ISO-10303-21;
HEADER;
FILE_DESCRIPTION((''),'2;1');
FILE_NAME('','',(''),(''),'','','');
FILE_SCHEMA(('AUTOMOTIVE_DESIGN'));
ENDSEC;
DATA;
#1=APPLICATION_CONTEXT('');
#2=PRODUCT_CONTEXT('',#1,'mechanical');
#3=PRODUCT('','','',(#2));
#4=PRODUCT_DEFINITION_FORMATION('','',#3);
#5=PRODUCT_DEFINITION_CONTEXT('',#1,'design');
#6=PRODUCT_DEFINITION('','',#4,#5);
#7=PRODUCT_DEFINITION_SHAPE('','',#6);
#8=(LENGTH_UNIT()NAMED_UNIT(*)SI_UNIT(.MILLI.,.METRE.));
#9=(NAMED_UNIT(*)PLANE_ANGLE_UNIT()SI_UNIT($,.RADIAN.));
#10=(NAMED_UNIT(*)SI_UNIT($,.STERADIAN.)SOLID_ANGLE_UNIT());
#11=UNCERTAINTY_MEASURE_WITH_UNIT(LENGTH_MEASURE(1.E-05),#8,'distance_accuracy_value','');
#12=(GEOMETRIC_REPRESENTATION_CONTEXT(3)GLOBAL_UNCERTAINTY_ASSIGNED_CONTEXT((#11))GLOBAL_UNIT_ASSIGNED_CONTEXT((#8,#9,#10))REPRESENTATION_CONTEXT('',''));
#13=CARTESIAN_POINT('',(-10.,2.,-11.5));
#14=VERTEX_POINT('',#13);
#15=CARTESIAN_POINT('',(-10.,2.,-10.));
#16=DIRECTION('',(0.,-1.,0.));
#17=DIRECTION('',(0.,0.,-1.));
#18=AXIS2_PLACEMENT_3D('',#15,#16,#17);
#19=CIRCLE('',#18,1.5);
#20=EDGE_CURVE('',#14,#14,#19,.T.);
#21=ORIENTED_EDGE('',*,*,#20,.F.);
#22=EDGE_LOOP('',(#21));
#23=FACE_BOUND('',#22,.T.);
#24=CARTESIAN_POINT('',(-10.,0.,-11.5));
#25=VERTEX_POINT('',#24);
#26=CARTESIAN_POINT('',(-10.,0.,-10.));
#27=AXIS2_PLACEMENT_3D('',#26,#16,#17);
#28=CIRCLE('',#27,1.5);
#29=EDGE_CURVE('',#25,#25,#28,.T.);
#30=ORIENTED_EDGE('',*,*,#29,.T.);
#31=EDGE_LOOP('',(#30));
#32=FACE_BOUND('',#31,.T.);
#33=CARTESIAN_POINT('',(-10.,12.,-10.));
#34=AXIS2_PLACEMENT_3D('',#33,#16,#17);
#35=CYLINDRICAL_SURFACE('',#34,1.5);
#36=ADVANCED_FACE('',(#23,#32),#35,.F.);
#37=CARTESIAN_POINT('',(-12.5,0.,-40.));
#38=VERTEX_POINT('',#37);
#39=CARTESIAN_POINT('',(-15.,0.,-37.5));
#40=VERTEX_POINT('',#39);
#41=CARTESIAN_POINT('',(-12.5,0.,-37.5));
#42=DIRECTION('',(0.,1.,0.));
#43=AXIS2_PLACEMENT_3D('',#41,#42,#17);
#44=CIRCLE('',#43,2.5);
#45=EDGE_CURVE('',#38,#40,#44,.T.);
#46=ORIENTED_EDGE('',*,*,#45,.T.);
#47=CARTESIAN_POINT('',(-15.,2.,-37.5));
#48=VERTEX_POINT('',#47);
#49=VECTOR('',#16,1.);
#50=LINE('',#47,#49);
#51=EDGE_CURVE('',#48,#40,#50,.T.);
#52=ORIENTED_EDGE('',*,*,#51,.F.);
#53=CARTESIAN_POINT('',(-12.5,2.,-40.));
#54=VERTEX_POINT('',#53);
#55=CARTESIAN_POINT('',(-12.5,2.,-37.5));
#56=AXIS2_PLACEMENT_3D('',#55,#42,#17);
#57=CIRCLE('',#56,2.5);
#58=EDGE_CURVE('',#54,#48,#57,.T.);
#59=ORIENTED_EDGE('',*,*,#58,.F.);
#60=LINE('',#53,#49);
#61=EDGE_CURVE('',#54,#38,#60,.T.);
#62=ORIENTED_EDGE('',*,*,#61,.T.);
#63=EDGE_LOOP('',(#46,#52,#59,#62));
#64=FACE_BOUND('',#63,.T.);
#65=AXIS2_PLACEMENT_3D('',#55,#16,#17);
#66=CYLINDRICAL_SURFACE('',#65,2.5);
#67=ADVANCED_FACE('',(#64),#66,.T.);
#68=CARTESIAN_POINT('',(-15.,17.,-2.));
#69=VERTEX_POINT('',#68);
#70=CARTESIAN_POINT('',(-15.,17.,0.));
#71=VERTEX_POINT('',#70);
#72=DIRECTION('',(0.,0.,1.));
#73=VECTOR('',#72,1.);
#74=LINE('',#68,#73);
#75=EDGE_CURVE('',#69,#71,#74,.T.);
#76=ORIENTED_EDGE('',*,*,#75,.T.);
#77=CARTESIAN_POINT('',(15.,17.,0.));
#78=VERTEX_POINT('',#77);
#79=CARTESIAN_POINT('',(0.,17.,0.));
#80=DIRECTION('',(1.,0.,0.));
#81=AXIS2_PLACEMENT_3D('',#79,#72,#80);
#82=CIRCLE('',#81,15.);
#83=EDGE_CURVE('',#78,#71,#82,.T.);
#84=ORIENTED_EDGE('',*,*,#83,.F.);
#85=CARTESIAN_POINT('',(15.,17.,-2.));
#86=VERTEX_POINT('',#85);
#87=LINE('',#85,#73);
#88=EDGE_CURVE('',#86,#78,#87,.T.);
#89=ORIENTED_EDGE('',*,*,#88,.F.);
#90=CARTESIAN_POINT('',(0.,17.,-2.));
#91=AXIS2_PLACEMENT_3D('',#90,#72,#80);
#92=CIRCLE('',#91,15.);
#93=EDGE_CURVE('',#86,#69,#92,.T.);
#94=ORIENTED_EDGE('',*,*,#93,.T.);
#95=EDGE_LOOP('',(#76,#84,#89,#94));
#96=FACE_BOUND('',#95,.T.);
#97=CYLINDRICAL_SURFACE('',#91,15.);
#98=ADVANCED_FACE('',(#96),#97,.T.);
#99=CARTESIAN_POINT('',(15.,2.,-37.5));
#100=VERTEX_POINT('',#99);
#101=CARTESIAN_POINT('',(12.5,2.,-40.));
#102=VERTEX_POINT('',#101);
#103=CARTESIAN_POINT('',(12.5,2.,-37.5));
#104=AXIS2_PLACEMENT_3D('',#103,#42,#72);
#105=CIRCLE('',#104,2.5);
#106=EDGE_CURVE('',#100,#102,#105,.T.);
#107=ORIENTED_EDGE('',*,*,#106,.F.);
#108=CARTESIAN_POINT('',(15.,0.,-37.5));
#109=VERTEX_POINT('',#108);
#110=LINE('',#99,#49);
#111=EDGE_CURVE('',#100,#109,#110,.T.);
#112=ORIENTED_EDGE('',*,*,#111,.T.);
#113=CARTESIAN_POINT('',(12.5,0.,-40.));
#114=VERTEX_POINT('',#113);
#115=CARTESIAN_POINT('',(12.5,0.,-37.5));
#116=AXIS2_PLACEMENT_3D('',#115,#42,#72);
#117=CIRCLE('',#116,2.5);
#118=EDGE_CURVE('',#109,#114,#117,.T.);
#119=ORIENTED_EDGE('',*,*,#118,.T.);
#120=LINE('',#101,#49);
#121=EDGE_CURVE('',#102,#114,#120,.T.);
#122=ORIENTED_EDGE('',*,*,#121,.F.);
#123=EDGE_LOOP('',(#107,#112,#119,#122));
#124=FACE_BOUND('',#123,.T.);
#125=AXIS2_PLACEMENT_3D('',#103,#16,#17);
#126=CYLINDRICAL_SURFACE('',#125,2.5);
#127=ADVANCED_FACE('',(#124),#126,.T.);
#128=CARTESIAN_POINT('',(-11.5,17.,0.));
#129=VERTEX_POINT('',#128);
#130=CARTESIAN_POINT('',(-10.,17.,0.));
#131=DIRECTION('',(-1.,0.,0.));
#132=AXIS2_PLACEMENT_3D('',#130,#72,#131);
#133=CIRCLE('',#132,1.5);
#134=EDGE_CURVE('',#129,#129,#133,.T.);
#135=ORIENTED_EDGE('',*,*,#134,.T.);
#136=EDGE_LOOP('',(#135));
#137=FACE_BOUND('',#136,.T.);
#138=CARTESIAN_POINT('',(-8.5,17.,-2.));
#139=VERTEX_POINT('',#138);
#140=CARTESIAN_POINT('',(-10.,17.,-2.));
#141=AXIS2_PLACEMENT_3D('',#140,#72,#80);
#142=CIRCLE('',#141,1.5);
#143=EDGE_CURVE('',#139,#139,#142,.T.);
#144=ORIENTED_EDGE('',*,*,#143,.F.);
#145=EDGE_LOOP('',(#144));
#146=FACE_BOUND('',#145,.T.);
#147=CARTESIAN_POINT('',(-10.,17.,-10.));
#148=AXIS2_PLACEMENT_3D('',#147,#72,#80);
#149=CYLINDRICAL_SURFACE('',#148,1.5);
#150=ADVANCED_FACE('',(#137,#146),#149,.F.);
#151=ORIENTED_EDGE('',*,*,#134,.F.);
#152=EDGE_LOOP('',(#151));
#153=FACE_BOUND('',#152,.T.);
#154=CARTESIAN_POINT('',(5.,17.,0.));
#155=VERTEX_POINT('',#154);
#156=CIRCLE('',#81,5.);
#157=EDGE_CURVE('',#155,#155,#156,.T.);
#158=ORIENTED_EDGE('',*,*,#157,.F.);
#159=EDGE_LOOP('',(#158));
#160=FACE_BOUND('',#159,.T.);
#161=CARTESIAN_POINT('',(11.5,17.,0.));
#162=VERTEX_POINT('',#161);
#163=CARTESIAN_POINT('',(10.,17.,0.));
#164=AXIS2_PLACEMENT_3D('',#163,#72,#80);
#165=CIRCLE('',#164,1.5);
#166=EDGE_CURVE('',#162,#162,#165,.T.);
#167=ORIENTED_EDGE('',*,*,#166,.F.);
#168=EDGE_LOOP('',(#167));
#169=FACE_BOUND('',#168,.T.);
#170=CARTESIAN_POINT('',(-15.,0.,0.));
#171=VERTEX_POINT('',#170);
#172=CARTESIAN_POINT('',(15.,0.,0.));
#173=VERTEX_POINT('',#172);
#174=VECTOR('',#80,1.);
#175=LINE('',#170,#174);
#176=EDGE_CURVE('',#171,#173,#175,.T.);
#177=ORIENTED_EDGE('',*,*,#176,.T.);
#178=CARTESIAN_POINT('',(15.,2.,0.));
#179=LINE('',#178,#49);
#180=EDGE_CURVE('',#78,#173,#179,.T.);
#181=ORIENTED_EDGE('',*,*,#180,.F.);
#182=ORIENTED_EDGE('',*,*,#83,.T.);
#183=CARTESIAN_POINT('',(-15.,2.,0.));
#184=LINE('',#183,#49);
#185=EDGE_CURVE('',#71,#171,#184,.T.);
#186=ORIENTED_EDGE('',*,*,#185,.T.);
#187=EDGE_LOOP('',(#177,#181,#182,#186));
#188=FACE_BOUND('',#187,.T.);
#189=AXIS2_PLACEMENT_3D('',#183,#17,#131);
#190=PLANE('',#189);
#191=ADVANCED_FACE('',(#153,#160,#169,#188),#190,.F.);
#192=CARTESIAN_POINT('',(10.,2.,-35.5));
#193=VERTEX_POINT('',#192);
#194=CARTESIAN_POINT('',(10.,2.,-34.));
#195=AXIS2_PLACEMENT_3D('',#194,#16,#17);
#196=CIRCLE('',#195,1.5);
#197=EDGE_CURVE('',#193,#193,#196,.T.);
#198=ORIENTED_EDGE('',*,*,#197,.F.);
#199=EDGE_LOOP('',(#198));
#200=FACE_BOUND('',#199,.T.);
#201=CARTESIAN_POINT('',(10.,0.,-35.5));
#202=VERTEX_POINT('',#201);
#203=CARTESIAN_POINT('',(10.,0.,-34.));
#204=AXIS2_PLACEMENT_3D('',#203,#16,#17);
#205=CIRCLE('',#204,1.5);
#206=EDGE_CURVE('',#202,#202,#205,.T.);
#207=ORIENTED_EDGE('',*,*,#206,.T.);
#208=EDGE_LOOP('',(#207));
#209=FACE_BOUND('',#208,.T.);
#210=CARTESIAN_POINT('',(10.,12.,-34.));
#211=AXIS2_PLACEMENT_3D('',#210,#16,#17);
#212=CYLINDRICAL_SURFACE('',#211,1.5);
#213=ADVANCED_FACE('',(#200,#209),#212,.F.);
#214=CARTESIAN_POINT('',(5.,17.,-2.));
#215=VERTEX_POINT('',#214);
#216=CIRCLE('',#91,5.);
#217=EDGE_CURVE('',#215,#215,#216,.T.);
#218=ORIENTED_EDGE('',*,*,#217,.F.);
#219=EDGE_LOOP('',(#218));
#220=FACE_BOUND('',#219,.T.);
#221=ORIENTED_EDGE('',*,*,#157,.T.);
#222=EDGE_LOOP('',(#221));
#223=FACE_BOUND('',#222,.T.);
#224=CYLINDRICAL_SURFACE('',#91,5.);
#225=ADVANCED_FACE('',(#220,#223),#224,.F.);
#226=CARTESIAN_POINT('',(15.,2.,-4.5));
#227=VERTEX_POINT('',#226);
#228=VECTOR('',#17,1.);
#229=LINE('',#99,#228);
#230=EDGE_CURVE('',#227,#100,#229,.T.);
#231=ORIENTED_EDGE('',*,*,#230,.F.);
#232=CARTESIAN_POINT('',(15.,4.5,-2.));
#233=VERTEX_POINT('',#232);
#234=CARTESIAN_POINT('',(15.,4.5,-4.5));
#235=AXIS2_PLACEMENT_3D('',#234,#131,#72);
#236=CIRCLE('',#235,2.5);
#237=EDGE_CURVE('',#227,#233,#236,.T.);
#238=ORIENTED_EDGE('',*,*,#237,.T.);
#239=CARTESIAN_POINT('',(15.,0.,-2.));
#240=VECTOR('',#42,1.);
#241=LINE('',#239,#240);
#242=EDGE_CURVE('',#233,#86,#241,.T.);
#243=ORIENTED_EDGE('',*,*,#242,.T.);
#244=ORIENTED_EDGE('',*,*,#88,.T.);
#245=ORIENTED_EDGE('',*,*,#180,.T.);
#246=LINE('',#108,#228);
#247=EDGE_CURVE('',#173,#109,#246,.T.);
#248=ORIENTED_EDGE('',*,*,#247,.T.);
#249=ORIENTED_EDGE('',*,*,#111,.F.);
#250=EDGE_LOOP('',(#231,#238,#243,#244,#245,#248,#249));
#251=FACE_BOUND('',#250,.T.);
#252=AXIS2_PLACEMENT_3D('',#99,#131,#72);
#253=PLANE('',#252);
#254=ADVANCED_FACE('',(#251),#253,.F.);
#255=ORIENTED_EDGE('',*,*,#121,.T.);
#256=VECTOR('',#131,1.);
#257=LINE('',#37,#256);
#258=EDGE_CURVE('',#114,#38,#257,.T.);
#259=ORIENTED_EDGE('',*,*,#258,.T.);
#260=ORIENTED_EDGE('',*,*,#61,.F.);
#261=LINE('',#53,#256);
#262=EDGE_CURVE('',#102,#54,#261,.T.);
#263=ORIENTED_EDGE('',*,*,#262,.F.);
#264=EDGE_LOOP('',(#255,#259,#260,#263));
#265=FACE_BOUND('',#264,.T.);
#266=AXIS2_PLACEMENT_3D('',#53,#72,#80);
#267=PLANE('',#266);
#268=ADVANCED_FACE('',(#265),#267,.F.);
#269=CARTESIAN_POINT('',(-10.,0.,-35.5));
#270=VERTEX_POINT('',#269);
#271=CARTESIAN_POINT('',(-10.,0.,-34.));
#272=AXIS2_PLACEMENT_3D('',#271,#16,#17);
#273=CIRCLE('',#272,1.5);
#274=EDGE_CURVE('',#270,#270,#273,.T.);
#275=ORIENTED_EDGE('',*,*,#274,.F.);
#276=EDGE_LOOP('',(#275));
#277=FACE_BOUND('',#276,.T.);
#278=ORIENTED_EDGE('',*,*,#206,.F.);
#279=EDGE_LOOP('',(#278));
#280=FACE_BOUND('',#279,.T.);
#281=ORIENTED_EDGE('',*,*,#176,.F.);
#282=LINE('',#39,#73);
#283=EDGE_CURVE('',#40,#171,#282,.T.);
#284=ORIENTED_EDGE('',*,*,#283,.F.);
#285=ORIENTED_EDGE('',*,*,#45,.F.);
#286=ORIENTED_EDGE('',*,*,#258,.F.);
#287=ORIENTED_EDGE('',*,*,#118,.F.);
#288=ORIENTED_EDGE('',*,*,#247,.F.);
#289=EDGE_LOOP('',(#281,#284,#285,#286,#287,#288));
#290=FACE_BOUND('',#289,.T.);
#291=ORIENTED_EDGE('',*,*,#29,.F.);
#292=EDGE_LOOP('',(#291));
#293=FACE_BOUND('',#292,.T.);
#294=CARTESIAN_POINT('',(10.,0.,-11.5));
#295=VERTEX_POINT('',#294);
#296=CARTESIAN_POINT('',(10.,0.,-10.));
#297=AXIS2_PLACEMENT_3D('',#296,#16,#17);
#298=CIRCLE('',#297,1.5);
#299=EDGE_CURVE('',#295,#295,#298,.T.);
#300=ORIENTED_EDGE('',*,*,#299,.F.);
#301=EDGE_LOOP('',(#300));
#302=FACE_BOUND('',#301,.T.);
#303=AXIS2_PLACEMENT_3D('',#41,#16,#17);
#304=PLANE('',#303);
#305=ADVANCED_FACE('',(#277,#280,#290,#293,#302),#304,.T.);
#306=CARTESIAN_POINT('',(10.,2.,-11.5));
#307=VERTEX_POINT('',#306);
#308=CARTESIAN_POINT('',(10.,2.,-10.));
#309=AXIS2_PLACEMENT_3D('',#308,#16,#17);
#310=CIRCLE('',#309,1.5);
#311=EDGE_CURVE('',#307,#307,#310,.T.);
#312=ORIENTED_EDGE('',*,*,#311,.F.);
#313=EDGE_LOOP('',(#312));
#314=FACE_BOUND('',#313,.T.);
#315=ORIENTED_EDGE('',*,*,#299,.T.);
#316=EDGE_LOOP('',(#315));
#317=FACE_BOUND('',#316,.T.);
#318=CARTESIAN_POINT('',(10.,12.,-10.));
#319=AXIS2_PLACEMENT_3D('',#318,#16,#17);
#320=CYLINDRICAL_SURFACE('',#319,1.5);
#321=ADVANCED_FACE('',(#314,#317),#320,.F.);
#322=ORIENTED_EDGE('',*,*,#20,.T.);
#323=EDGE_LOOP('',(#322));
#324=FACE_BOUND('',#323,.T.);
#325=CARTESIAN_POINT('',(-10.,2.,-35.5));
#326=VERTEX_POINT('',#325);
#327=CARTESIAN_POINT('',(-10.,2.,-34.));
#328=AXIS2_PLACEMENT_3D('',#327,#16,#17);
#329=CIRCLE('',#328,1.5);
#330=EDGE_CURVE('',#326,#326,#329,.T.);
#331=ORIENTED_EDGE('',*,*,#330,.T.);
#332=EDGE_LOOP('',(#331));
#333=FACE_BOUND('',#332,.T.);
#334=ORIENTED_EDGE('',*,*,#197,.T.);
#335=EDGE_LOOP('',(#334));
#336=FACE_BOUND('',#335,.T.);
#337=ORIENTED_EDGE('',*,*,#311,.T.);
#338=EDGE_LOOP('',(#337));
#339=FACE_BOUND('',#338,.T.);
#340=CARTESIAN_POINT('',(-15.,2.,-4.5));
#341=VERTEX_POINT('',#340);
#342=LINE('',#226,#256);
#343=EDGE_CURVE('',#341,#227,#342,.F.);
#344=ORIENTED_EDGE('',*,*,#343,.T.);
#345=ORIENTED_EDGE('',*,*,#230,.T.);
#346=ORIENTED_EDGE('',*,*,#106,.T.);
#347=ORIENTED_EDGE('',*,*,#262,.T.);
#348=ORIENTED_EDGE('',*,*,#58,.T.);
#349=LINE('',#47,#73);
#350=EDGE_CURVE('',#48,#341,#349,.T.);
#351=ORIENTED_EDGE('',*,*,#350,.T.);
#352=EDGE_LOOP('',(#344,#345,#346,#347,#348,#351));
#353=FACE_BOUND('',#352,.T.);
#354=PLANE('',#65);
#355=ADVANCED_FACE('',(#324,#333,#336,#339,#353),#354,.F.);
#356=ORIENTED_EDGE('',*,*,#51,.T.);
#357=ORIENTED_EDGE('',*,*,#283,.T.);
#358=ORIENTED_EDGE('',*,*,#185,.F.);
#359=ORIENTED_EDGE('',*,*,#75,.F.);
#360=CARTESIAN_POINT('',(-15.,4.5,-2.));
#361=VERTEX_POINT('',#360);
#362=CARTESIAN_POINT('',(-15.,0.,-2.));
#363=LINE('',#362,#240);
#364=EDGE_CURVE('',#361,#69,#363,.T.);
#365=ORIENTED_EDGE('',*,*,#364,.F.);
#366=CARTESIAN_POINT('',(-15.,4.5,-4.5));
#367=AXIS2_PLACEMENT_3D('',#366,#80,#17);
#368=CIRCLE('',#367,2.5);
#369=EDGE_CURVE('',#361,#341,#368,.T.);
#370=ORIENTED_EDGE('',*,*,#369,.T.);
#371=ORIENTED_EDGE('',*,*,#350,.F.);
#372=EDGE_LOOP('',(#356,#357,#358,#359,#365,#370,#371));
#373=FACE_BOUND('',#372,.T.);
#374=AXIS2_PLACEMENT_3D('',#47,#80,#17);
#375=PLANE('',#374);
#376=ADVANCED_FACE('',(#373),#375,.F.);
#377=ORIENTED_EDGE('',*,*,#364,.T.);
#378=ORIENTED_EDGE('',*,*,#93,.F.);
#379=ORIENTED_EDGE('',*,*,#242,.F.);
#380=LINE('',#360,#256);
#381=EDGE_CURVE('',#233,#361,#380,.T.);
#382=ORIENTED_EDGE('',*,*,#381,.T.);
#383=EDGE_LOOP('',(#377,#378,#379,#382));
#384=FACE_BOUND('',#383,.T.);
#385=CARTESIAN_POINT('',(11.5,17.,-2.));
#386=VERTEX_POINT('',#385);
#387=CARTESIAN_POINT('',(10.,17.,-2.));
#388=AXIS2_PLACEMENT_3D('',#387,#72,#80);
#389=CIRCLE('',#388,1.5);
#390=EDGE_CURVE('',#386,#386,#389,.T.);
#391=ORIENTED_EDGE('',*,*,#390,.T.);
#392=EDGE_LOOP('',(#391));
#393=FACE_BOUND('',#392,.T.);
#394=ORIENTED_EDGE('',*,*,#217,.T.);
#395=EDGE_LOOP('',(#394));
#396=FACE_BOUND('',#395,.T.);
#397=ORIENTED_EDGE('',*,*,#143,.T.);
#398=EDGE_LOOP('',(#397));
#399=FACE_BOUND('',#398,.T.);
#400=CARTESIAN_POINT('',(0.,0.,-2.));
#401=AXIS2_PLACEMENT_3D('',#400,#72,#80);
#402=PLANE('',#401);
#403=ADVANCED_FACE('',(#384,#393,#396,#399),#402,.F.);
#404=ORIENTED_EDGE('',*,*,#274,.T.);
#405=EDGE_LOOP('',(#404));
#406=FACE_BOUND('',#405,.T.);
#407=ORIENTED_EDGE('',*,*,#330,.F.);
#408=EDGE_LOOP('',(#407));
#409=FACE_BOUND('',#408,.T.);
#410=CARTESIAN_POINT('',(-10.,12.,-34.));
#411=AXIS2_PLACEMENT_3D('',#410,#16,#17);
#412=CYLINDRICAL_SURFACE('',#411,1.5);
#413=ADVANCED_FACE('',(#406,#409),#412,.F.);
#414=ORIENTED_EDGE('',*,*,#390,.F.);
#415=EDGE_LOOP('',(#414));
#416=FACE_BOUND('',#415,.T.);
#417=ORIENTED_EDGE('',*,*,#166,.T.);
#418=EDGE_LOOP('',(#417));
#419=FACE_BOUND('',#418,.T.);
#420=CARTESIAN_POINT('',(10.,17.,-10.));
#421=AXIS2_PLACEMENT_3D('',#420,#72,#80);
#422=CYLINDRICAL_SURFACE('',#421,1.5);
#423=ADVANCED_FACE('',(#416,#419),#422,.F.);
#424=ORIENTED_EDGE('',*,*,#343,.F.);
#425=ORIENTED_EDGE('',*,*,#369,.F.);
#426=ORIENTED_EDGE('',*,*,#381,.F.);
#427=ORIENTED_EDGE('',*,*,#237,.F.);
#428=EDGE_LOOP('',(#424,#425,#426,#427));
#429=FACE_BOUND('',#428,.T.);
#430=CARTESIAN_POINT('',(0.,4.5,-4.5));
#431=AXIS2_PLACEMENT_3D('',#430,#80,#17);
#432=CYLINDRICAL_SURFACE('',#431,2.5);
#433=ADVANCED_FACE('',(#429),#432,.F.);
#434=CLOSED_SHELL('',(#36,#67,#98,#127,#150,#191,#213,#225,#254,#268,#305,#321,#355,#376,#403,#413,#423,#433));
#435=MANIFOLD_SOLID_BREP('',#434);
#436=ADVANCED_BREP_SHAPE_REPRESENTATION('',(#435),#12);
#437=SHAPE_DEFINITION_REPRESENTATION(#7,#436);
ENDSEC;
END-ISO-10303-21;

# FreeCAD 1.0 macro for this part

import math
import FreeCAD as App
import Part
import Sketcher

V = App.Vector
Q = App.Units.Quantity


def edges_at(feature, points):
    """Names of the edges that pass closest to the given points."""
    edges = feature.Shape.Edges
    near = lambda p: min(range(len(edges)), key=lambda i: edges[i].distToShape(Part.Vertex(*p))[0])
    return sorted({f"Edge{near(p) + 1}" for p in points})

doc = App.newDocument("Part")
body = doc.addObject("PartDesign::Body", "Body")

sketch1 = body.newObject("Sketcher::SketchObject", "Sketch")
sketch1.AttachmentSupport = (doc.getObject("XZ_Plane"), [""])
sketch1.MapMode = "FlatFace"
sketch1.addGeometry([
    Part.LineSegment(V(12.5, -40, 0), V(-12.5, -40, 0)),
    Part.ArcOfCircle(Part.Circle(V(-12.5, -37.5, 0), V(0, 0, 1), 2.5), math.radians(180), math.radians(270)),
    Part.LineSegment(V(-15, -37.5, 0), V(-15, 0, 0)),
    Part.LineSegment(V(-15, 0, 0), V(15, 0, 0)),
    Part.LineSegment(V(15, 0, 0), V(15, -37.5, 0)),
    Part.ArcOfCircle(Part.Circle(V(12.5, -37.5, 0), V(0, 0, 1), 2.5), math.radians(-90), math.radians(0)),
], False)
sketch1.addConstraint([
    Sketcher.Constraint("Tangent", 0, 2, 1, 2),
    Sketcher.Constraint("Tangent", 1, 1, 2, 1),
    Sketcher.Constraint("Coincident", 2, 2, 3, 1),
    Sketcher.Constraint("Coincident", 3, 2, 4, 1),
    Sketcher.Constraint("Tangent", 4, 2, 5, 2),
    Sketcher.Constraint("Tangent", 5, 1, 0, 1),
    Sketcher.Constraint("Horizontal", 0),
    Sketcher.Constraint("Vertical", 2),
    Sketcher.Constraint("Horizontal", 3),
    Sketcher.Constraint("Vertical", 4),
    Sketcher.Constraint("Equal", 1, 5),
    Sketcher.Constraint("Symmetric", 2, 2, 3, 2, -1, 1),
    Sketcher.Constraint("Radius", 1, Q("2.5 mm")),
    Sketcher.Constraint("DistanceX", 0, 2, 0, 1, Q("25 mm")),
    Sketcher.Constraint("DistanceY", 2, 1, 2, 2, Q("37.5 mm")),
])
pad1 = body.newObject("PartDesign::Pad", "Pad")
pad1.Profile = sketch1
pad1.Length = 2
pad1.Reversed = True

sketch2 = body.newObject("Sketcher::SketchObject", "Sketch001")
sketch2.AttachmentSupport = (doc.getObject("XY_Plane"), [""])
sketch2.MapMode = "FlatFace"
sketch2.addGeometry([
    Part.LineSegment(V(-15, 17, 0), V(-15, 2, 0)),
    Part.LineSegment(V(-15, 2, 0), V(15, 2, 0)),
    Part.LineSegment(V(15, 2, 0), V(15, 17, 0)),
    Part.ArcOfCircle(Part.Circle(V(0, 17, 0), V(0, 0, 1), 15), math.radians(0), math.radians(180)),
    Part.Circle(V(0, 17, 0), V(0, 0, 1), 5),
], False)
sketch2.addConstraint([
    Sketcher.Constraint("Coincident", 0, 2, 1, 1),
    Sketcher.Constraint("Coincident", 1, 2, 2, 1),
    Sketcher.Constraint("Tangent", 2, 2, 3, 1),
    Sketcher.Constraint("Tangent", 3, 2, 0, 1),
    Sketcher.Constraint("Vertical", 0),
    Sketcher.Constraint("Horizontal", 1),
    Sketcher.Constraint("Vertical", 2),
    Sketcher.Constraint("Coincident", 4, 3, 3, 3),
    Sketcher.Constraint("PointOnObject", 3, 3, -2),
    Sketcher.Constraint("Diameter", 4, Q("10 mm")),
    Sketcher.Constraint("Radius", 3, Q("15 mm")),
    Sketcher.Constraint("DistanceY", 0, 2, 0, 1, Q("15 mm")),
    Sketcher.Constraint("DistanceY", -1, 1, 3, 3, Q("17 mm")),
])
pad2 = body.newObject("PartDesign::Pad", "Pad001")
pad2.Profile = sketch2
pad2.Length = 2
pad2.Reversed = True
doc.recompute()

fillet = body.newObject("PartDesign::Fillet", "Fillet")
fillet.Base = (pad2, edges_at(pad2, [(0, 2, -2)]))
fillet.Radius = 2.5

sketch3 = body.newObject("Sketcher::SketchObject", "Sketch002")
sketch3.AttachmentSupport = (doc.getObject("XZ_Plane"), [""])
sketch3.MapMode = "FlatFace"
sketch3.addGeometry([
    Part.Circle(V(10, -10, 0), V(0, 0, 1), 1.5),
    Part.Circle(V(-10, -10, 0), V(0, 0, 1), 1.5),
    Part.Circle(V(-10, -34, 0), V(0, 0, 1), 1.5),
    Part.Circle(V(10, -34, 0), V(0, 0, 1), 1.5),
], False)
sketch3.addConstraint([
    Sketcher.Constraint("Equal", 0, 1),
    Sketcher.Constraint("Equal", 1, 2),
    Sketcher.Constraint("Equal", 2, 3),
    Sketcher.Constraint("Symmetric", 0, 3, 1, 3, -2),
    Sketcher.Constraint("Symmetric", 2, 3, 3, 3, -2),
    Sketcher.Constraint("Vertical", 1, 3, 2, 3),
    Sketcher.Constraint("Diameter", 0, Q("3 mm")),
    Sketcher.Constraint("DistanceX", -1, 1, 0, 3, Q("10 mm")),
    Sketcher.Constraint("DistanceY", 0, 3, -1, 1, Q("10 mm")),
    Sketcher.Constraint("DistanceY", 2, 3, -1, 1, Q("34 mm")),
])
pocket1 = body.newObject("PartDesign::Pocket", "Pocket")
pocket1.Profile = sketch3
pocket1.Length = 12

sketch4 = body.newObject("Sketcher::SketchObject", "Sketch003")
sketch4.AttachmentSupport = (doc.getObject("XY_Plane"), [""])
sketch4.MapMode = "FlatFace"
sketch4.addGeometry([
    Part.Circle(V(10, 17, 0), V(0, 0, 1), 1.5),
    Part.Circle(V(-10, 17, 0), V(0, 0, 1), 1.5),
], False)
sketch4.addConstraint([
    Sketcher.Constraint("Equal", 0, 1),
    Sketcher.Constraint("Symmetric", 0, 3, 1, 3, -2),
    Sketcher.Constraint("Diameter", 0, Q("3 mm")),
    Sketcher.Constraint("DistanceX", -1, 1, 0, 3, Q("10 mm")),
    Sketcher.Constraint("DistanceY", -1, 1, 0, 3, Q("17 mm")),
])
pocket2 = body.newObject("PartDesign::Pocket", "Pocket001")
pocket2.Profile = sketch4
pocket2.Length = 10

doc.recompute()
